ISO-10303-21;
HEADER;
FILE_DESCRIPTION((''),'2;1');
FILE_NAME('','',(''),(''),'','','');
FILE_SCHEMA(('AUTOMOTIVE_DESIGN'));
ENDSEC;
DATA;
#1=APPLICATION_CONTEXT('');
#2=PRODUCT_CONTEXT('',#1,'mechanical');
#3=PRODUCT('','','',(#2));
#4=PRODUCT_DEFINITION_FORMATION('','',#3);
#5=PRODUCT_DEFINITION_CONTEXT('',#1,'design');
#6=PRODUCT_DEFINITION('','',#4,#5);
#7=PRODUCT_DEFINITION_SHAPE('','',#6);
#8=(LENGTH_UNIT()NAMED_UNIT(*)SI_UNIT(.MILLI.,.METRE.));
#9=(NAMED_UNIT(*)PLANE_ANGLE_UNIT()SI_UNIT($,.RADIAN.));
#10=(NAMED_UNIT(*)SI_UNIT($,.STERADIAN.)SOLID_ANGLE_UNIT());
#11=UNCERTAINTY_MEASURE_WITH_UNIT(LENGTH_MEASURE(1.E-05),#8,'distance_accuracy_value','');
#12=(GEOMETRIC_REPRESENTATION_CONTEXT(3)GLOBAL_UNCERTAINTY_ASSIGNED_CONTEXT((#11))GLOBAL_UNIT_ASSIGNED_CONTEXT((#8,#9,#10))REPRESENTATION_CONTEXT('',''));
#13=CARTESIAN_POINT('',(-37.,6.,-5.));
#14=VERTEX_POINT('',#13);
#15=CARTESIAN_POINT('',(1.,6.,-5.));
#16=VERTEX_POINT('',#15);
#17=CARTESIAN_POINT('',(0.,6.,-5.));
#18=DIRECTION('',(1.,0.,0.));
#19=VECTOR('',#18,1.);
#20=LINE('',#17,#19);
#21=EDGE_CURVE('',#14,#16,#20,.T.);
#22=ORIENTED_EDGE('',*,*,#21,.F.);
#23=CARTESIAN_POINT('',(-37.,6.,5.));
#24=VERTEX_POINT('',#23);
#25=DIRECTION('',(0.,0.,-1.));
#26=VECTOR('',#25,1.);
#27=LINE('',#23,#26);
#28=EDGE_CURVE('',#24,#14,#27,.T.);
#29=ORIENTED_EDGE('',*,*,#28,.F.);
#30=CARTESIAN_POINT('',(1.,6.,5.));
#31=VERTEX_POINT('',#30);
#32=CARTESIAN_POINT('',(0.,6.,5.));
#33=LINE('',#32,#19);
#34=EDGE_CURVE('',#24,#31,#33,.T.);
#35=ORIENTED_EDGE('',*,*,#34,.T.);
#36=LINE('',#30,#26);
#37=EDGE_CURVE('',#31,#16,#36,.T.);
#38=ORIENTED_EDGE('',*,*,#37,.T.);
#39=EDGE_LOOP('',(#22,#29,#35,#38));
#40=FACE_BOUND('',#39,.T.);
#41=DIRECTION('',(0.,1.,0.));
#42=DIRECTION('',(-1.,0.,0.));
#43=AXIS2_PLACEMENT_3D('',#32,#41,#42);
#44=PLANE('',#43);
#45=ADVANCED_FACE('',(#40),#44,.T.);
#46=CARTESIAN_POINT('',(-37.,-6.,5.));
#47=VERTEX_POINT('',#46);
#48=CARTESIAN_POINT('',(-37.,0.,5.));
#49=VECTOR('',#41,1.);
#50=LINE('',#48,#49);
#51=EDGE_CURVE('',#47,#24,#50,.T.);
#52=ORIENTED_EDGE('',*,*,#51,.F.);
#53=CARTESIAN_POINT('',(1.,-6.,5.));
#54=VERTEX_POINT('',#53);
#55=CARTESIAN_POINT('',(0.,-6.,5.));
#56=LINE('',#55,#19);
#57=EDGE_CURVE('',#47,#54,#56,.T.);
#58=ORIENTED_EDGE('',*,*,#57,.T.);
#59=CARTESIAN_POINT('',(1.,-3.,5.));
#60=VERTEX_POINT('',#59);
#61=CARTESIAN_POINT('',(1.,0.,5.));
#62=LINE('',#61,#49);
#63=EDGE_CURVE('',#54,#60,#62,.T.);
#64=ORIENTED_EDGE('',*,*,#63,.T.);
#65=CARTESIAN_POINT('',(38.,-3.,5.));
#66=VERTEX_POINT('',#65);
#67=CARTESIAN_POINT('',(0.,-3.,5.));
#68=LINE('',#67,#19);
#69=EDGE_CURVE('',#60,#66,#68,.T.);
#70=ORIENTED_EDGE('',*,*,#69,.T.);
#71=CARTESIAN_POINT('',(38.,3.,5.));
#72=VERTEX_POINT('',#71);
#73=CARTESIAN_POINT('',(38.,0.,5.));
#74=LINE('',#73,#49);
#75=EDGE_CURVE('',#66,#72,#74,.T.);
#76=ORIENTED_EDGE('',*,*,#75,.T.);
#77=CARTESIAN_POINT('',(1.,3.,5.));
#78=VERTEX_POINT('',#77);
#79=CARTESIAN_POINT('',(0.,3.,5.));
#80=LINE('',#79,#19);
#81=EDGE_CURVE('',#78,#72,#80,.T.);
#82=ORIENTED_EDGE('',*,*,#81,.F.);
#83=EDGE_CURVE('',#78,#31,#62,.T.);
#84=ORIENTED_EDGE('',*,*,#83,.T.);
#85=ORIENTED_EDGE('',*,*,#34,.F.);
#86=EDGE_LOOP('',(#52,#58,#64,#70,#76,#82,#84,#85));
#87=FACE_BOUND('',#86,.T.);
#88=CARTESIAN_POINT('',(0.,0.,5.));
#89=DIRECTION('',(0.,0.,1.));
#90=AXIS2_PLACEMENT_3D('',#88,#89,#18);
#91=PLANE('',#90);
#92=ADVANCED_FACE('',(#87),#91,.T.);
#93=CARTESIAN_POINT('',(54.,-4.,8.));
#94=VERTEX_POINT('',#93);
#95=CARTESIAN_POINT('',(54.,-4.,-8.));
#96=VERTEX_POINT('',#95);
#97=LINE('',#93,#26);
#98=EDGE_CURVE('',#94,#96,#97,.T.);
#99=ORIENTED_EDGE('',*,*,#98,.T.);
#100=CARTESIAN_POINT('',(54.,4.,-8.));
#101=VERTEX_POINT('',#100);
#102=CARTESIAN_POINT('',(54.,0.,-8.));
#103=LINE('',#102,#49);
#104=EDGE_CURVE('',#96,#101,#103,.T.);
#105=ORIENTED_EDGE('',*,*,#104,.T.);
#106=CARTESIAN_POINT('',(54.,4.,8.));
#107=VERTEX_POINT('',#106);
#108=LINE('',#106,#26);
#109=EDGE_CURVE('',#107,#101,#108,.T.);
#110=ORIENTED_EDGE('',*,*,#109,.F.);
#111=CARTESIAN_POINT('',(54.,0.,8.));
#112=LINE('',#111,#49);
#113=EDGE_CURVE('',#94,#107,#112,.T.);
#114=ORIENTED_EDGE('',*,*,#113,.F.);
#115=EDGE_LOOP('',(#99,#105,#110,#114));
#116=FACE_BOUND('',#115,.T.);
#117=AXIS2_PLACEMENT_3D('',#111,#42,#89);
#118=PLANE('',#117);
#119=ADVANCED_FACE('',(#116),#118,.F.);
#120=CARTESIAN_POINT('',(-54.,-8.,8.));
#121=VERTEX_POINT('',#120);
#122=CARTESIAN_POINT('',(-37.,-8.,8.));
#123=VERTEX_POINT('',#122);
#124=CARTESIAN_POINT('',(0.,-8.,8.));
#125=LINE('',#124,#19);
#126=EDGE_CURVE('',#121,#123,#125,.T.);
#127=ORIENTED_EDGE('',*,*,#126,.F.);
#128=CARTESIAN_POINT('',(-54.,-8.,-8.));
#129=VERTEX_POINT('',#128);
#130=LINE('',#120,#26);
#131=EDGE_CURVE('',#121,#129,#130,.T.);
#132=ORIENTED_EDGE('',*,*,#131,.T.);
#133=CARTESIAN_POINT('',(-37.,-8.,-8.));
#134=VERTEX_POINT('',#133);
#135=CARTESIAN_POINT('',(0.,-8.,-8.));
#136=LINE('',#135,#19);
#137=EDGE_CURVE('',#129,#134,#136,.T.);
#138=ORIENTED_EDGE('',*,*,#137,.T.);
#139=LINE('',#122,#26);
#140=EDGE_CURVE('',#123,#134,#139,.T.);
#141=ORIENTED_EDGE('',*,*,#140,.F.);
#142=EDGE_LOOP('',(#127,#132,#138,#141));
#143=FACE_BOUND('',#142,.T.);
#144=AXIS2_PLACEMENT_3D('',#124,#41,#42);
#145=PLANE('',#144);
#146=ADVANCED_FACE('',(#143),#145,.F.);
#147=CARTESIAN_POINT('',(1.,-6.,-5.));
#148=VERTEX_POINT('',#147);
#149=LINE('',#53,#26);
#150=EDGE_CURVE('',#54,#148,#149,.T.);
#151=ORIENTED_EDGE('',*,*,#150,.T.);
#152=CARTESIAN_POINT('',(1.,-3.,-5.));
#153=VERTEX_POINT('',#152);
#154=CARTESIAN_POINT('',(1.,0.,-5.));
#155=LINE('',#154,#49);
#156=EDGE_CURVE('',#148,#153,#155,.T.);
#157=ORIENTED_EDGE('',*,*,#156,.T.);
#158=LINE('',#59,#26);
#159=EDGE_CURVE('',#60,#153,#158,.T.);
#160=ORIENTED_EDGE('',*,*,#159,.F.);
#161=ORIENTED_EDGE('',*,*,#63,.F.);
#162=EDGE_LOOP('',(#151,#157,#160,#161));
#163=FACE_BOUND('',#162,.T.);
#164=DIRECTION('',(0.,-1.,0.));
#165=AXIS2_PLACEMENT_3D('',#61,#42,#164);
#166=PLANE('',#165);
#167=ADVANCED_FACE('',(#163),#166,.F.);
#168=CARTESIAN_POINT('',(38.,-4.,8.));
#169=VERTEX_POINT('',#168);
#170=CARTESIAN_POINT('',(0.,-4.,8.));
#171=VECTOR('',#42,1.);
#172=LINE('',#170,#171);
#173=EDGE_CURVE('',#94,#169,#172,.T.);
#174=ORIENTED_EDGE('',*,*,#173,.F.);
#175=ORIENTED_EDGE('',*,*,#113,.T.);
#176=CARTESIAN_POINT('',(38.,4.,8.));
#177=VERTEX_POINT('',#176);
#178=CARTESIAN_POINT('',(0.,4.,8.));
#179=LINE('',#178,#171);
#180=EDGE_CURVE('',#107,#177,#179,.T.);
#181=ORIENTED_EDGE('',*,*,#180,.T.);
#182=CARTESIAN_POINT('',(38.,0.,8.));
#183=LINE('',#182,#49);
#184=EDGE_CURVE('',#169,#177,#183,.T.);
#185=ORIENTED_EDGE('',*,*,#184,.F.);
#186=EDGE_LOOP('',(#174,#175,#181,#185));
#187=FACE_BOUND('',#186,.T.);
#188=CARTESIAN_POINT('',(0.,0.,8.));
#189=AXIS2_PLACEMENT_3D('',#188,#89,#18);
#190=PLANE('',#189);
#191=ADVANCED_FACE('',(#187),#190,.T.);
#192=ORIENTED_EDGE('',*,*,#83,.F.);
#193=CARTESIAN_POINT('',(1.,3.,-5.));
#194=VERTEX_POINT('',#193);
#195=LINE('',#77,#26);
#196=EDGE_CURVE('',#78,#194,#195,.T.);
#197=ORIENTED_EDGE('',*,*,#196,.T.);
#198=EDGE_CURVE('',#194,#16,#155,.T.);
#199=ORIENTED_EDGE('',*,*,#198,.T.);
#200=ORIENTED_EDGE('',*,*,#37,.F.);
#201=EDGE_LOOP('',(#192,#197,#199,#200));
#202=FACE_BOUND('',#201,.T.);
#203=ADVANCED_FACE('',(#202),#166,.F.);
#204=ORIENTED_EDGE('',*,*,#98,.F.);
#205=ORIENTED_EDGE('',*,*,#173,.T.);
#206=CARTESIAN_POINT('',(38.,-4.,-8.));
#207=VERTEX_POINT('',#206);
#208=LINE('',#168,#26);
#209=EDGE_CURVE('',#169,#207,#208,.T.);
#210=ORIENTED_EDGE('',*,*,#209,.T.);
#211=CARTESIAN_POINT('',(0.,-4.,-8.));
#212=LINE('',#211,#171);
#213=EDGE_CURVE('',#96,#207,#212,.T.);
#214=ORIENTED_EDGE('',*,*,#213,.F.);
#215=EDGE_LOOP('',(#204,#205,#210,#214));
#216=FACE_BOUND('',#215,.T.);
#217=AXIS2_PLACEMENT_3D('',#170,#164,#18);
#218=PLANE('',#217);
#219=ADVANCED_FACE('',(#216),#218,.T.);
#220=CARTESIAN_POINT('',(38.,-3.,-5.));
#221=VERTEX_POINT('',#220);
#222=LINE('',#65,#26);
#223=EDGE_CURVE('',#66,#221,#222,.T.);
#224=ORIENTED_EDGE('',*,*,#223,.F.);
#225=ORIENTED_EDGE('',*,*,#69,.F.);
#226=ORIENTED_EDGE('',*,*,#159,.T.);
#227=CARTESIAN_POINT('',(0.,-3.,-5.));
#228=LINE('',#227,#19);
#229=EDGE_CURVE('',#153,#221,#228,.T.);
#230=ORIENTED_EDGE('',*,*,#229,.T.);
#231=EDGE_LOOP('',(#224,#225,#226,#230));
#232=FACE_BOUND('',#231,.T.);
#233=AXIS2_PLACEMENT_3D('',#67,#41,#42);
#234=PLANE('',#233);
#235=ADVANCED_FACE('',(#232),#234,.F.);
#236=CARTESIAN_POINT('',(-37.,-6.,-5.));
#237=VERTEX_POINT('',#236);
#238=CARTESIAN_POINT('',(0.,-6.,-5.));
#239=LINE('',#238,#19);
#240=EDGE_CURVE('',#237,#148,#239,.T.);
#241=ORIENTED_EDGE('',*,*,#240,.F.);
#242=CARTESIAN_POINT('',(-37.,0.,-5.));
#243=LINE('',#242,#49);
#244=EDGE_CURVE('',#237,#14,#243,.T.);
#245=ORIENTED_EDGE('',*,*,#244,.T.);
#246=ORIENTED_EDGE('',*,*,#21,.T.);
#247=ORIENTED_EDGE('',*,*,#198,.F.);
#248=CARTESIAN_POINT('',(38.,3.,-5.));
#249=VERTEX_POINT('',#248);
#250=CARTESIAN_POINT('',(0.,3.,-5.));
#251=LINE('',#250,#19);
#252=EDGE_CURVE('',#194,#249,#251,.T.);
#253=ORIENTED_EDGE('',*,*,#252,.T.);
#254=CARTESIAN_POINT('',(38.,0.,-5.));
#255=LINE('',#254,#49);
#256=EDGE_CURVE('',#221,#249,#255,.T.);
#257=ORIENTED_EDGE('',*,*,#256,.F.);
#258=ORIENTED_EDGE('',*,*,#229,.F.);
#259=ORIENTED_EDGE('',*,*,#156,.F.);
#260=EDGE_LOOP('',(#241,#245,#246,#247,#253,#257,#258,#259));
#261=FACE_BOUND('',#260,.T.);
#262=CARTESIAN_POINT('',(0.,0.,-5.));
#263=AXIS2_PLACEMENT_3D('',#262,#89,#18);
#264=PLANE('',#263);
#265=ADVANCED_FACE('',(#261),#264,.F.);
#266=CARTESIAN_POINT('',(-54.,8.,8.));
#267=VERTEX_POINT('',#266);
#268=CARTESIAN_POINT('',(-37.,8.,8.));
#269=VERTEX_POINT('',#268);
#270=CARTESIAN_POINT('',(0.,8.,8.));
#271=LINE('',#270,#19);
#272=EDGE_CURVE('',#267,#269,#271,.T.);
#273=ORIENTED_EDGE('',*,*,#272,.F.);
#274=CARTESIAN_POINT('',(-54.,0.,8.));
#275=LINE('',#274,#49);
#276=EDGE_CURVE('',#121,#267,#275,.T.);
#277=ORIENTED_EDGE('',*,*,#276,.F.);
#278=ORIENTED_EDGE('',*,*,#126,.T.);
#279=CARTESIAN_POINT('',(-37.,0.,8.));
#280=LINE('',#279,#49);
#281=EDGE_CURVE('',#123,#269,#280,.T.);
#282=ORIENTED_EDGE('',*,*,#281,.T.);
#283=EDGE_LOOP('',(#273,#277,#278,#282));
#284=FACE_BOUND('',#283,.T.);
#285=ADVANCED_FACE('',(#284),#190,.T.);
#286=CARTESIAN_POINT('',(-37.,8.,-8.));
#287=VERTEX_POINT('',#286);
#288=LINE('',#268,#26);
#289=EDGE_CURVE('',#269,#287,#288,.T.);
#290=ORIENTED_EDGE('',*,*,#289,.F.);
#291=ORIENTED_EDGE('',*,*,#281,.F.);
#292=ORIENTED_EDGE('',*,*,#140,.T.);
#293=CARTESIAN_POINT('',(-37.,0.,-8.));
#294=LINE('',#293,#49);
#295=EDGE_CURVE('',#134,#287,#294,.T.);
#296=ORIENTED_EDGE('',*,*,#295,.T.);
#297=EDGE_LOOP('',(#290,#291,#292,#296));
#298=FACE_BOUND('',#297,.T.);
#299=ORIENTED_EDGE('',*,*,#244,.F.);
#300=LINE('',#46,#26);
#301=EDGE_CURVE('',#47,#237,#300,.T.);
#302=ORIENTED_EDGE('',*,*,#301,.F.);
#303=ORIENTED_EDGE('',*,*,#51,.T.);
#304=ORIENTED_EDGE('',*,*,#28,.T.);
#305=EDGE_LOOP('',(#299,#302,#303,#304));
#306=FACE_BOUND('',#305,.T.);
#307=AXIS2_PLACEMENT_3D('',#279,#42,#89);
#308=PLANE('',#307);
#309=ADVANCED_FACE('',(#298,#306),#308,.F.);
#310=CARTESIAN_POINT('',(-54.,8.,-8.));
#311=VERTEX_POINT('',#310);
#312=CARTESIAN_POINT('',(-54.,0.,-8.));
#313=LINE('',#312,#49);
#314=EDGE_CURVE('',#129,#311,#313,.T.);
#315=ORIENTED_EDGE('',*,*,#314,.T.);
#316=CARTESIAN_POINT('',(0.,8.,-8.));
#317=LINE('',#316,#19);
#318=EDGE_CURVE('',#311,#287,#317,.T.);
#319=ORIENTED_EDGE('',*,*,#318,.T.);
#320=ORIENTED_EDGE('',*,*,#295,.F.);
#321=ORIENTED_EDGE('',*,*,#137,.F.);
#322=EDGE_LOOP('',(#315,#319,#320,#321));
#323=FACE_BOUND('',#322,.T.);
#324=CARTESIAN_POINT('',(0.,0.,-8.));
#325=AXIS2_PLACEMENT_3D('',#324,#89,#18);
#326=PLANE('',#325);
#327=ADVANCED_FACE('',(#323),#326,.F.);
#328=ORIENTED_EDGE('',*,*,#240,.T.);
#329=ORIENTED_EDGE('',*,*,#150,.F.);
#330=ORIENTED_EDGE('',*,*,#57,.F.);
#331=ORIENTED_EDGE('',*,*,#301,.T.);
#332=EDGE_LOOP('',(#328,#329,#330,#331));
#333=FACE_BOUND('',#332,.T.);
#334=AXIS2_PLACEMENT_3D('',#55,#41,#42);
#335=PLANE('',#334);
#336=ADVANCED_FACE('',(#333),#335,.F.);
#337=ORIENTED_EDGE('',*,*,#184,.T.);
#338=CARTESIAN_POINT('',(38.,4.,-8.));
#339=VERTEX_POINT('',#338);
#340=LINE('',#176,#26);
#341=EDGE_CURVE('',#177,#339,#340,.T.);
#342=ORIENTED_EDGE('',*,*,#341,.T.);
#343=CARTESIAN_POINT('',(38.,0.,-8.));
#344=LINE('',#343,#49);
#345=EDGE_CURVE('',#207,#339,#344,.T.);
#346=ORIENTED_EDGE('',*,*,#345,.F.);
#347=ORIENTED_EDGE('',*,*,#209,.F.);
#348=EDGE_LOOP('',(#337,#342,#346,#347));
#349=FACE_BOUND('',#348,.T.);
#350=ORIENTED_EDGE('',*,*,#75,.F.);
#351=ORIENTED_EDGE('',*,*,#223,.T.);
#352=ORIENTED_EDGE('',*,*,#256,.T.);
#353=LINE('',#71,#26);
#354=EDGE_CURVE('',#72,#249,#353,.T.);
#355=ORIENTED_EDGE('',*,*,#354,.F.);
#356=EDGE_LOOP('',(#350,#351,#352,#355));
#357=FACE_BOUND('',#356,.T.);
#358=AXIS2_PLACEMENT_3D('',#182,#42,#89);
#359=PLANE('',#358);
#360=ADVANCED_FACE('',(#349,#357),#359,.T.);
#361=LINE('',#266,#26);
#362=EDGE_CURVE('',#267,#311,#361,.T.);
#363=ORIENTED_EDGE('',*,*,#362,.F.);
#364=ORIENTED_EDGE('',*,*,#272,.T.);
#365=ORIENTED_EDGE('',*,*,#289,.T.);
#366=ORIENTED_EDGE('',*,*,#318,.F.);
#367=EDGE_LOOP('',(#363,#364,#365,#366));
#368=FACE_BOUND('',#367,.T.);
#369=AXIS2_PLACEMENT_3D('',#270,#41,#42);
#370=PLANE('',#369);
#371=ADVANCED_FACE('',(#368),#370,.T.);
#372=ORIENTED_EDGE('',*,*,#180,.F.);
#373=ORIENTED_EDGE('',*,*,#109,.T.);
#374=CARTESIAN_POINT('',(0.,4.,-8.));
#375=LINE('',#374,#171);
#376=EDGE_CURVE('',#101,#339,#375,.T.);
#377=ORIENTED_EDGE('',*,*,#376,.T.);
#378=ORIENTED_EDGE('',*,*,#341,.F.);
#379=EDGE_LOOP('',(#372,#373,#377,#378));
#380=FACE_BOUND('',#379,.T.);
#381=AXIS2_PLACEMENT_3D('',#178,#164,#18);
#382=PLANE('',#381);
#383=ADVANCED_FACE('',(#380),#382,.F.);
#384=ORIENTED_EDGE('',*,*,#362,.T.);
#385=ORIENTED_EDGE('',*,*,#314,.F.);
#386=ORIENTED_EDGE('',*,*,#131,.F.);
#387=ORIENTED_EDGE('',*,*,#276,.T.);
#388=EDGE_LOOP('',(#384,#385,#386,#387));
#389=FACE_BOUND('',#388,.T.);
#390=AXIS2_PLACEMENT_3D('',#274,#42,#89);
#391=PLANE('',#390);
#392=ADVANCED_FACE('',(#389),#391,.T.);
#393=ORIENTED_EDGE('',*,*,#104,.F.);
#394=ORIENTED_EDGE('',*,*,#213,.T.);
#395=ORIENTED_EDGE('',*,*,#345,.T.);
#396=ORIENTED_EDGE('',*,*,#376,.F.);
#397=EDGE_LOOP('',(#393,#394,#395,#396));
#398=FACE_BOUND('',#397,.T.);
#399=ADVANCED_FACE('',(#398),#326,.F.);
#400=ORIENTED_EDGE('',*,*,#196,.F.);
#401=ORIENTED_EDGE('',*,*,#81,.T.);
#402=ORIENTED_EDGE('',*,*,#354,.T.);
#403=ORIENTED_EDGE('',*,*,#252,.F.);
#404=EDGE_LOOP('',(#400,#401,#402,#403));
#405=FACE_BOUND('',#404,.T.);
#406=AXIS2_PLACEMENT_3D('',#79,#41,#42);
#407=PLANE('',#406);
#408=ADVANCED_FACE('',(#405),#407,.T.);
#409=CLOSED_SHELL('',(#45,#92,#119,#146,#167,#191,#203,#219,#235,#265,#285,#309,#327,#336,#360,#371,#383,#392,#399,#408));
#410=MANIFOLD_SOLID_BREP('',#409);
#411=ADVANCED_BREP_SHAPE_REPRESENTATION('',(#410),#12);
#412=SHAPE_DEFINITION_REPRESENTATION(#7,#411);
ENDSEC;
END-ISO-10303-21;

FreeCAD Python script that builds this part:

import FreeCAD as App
import Part
import Sketcher
from FreeCAD import Vector

doc = App.newDocument("Part")
body = doc.addObject("PartDesign::Body", "Body")

sketch1 = body.newObject("Sketcher::SketchObject", "Sketch")
sketch1.AttachmentSupport = (doc.getObject("XY_Plane"), [""])
sketch1.MapMode = "FlatFace"
sketch1.addGeometry([
    Part.LineSegment(Vector(-54, 8, 0), Vector(-54, -8, 0)),
    Part.LineSegment(Vector(-54, -8, 0), Vector(-37, -8, 0)),
    Part.LineSegment(Vector(-37, -8, 0), Vector(-37, 8, 0)),
    Part.LineSegment(Vector(-37, 8, 0), Vector(-54, 8, 0)),
], False)
sketch1.addConstraint([
    Sketcher.Constraint("Coincident", 0, 2, 1, 1),
    Sketcher.Constraint("Coincident", 1, 2, 2, 1),
    Sketcher.Constraint("Coincident", 2, 2, 3, 1),
    Sketcher.Constraint("Coincident", 3, 2, 0, 1),
    Sketcher.Constraint("Vertical", 0),
    Sketcher.Constraint("Horizontal", 1),
    Sketcher.Constraint("Vertical", 2),
    Sketcher.Constraint("Horizontal", 3),
    Sketcher.Constraint("DistanceX", 1, 1, 1, 2, 17.0),
    Sketcher.Constraint("DistanceY", 0, 2, 0, 1, 16.0),
    Sketcher.Constraint("DistanceX", 0, 2, -1, 1, 54.0),
    Sketcher.Constraint("DistanceY", 0, 2, -1, 1, 8.0),
])
pad1 = body.newObject("PartDesign::Pad", "Pad")
pad1.Profile = sketch1
pad1.Length = 16
pad1.Midplane = True
body2 = doc.addObject("PartDesign::Body", "Body001")

sketch2 = body2.newObject("Sketcher::SketchObject", "Sketch001")
sketch2.AttachmentSupport = (doc.getObject("XY_Plane001"), [""])
sketch2.MapMode = "FlatFace"
sketch2.addGeometry([
    Part.LineSegment(Vector(38, 4, 0), Vector(38, -4, 0)),
    Part.LineSegment(Vector(38, -4, 0), Vector(54, -4, 0)),
    Part.LineSegment(Vector(54, -4, 0), Vector(54, 4, 0)),
    Part.LineSegment(Vector(54, 4, 0), Vector(38, 4, 0)),
], False)
sketch2.addConstraint([
    Sketcher.Constraint("Coincident", 0, 2, 1, 1),
    Sketcher.Constraint("Coincident", 1, 2, 2, 1),
    Sketcher.Constraint("Coincident", 2, 2, 3, 1),
    Sketcher.Constraint("Coincident", 3, 2, 0, 1),
    Sketcher.Constraint("Vertical", 0),
    Sketcher.Constraint("Horizontal", 1),
    Sketcher.Constraint("Vertical", 2),
    Sketcher.Constraint("Horizontal", 3),
    Sketcher.Constraint("DistanceX", 1, 1, 1, 2, 16.0),
    Sketcher.Constraint("DistanceY", 0, 2, 0, 1, 8.0),
    Sketcher.Constraint("DistanceX", -1, 1, 0, 2, 38.0),
    Sketcher.Constraint("DistanceY", 0, 2, -1, 1, 4.0),
])
pad2 = body2.newObject("PartDesign::Pad", "Pad001")
pad2.Profile = sketch2
pad2.Length = 16
pad2.Midplane = True
body.AllowCompound = True
doc.recompute()

boolean = body.newObject("PartDesign::Boolean", "Boolean")
boolean.Type = "Fuse"
boolean.addObjects([body2])

sketch3 = body.newObject("Sketcher::SketchObject", "Sketch002")
sketch3.AttachmentSupport = (doc.getObject("XY_Plane"), [""])
sketch3.MapMode = "FlatFace"
sketch3.addGeometry([
    Part.LineSegment(Vector(1, -6, 0), Vector(1, -3, 0)),
    Part.LineSegment(Vector(1, -3, 0), Vector(38, -3, 0)),
    Part.LineSegment(Vector(38, -3, 0), Vector(38, 3, 0)),
    Part.LineSegment(Vector(38, 3, 0), Vector(1, 3, 0)),
    Part.LineSegment(Vector(1, 3, 0), Vector(1, 6, 0)),
    Part.LineSegment(Vector(1, 6, 0), Vector(-37, 6, 0)),
    Part.LineSegment(Vector(-37, 6, 0), Vector(-37, -6, 0)),
    Part.LineSegment(Vector(-37, -6, 0), Vector(1, -6, 0)),
], False)
sketch3.addConstraint([
    Sketcher.Constraint("Coincident", 0, 2, 1, 1),
    Sketcher.Constraint("Coincident", 1, 2, 2, 1),
    Sketcher.Constraint("Coincident", 2, 2, 3, 1),
    Sketcher.Constraint("Coincident", 3, 2, 4, 1),
    Sketcher.Constraint("Coincident", 4, 2, 5, 1),
    Sketcher.Constraint("Coincident", 5, 2, 6, 1),
    Sketcher.Constraint("Coincident", 6, 2, 7, 1),
    Sketcher.Constraint("Coincident", 7, 2, 0, 1),
    Sketcher.Constraint("Vertical", 0),
    Sketcher.Constraint("Horizontal", 1),
    Sketcher.Constraint("Vertical", 2),
    Sketcher.Constraint("Horizontal", 3),
    Sketcher.Constraint("Vertical", 4),
    Sketcher.Constraint("Horizontal", 5),
    Sketcher.Constraint("Vertical", 6),
    Sketcher.Constraint("Horizontal", 7),
    Sketcher.Constraint("Symmetric", 0, 2, 3, 2, -1),
    Sketcher.Constraint("Equal", 0, 4),
    Sketcher.Constraint("DistanceX", 1, 1, 1, 2, 37.0),
    Sketcher.Constraint("DistanceX", 5, 2, 5, 1, 38.0),
    Sketcher.Constraint("DistanceY", 0, 1, 0, 2, 3.0),
    Sketcher.Constraint("DistanceY", 2, 1, 2, 2, 6.0),
    Sketcher.Constraint("DistanceX", -1, 1, 0, 2, 1.0),
])
pad3 = body.newObject("PartDesign::Pad", "Pad002")
pad3.Profile = sketch3
pad3.Length = 10
pad3.Midplane = True

doc.recompute()
